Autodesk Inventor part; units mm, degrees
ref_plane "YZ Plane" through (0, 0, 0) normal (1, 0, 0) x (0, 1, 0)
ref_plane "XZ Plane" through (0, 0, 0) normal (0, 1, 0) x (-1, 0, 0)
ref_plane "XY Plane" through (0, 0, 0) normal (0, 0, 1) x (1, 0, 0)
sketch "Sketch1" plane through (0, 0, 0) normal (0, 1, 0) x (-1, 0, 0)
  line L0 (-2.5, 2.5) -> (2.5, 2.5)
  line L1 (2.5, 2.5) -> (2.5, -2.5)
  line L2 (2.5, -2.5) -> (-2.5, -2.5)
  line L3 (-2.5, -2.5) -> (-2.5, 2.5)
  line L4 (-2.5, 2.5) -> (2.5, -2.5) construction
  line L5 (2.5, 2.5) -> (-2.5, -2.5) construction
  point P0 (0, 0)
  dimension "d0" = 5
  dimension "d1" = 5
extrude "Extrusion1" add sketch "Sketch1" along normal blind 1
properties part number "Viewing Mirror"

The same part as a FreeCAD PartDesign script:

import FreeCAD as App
import Part
import Sketcher

V = App.Vector


def add_polygon(sketch, points):
    """Adds a closed chain of lines whose ends are joined by coincident constraints."""
    first, n = sketch.GeometryCount, len(points)
    for a, b in zip(points, points[1:] + points[:1]):
        sketch.addGeometry(Part.LineSegment(App.Vector(*a, 0), App.Vector(*b, 0)), False)
    for i in range(n):
        sketch.addConstraint(Sketcher.Constraint("Coincident", first + i, 2, first + (i + 1) % n, 1))

doc = App.newDocument("Part")
body = doc.addObject("PartDesign::Body", "Body")

# Sketch on XZ plane
sketch1 = body.newObject("Sketcher::SketchObject", "Sketch")
sketch1.AttachmentSupport = (doc.getObject("XZ_Plane"), [""])
sketch1.MapMode = "FlatFace"
add_polygon(sketch1, [(-2, 2), (2, 2), (2, -2), (-2, -2)])  # lines 0-3
sketch1.addConstraint([
    Sketcher.Constraint("Horizontal", 0),
    Sketcher.Constraint("Vertical", 1),
    Sketcher.Constraint("Horizontal", 2),
    Sketcher.Constraint("Vertical", 3),
    Sketcher.Constraint("Symmetric", 0, 2, 2, 2, -1, 1),
    Sketcher.Constraint("Equal", 2, 1),
    Sketcher.Constraint("DistanceX", 0, 1, 0, 2, 5.0),
])
pad1 = body.newObject("PartDesign::Pad", "Pad")
pad1.Profile = sketch1
pad1.Length = 1
pad1.Reversed = True

doc.recompute()
